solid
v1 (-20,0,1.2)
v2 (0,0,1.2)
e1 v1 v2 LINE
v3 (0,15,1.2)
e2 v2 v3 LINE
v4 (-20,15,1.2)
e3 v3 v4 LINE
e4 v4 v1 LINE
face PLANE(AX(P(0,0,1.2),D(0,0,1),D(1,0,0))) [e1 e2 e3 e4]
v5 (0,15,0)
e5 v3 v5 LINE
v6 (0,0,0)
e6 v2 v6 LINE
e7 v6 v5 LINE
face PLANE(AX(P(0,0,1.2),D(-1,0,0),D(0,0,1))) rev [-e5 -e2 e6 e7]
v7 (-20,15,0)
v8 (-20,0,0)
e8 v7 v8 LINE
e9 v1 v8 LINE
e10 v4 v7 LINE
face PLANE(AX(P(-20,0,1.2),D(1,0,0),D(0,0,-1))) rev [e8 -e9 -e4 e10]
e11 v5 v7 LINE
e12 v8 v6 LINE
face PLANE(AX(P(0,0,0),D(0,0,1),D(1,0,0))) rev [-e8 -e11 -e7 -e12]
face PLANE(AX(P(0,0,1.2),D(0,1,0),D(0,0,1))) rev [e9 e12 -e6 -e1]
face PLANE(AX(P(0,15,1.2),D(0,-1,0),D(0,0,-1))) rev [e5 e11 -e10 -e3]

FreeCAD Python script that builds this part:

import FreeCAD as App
import Part
import Sketcher

V = App.Vector

doc = App.newDocument("Part")
params = doc.addObject("Spreadsheet::Sheet", "Params")
for row, (alias, value) in enumerate([
    ("sketch1_width", "20 mm"),
    ("sketch1_height", "15 mm"),
    ("pad1_length", "1.2 mm"),
], start=1):
    params.set(f"A{row}", alias)
    params.set(f"B{row}", "=" + value)
    params.setAlias(f"B{row}", alias)

body = doc.addObject("PartDesign::Body", "Body")

sketch1 = body.newObject("Sketcher::SketchObject", "Sketch")
sketch1.AttachmentSupport = (doc.getObject("XY_Plane"), [""])
sketch1.MapMode = "FlatFace"
sketch1.addGeometry(Part.LineSegment(V(-20, 15, 0), V(-20, 0, 0)), False)
sketch1.addGeometry(Part.LineSegment(V(-20, 0, 0), V(0, 0, 0)), False)
sketch1.addGeometry(Part.LineSegment(V(0, 0, 0), V(0, 15, 0)), False)
sketch1.addGeometry(Part.LineSegment(V(0, 15, 0), V(-20, 15, 0)), False)
sketch1.addConstraint(Sketcher.Constraint("Coincident", 0, 2, 1, 1))
sketch1.addConstraint(Sketcher.Constraint("Coincident", 1, 2, 2, 1))
sketch1.addConstraint(Sketcher.Constraint("Coincident", 2, 2, 3, 1))
sketch1.addConstraint(Sketcher.Constraint("Coincident", 3, 2, 0, 1))
sketch1.addConstraint(Sketcher.Constraint("Vertical", 0))
sketch1.addConstraint(Sketcher.Constraint("Horizontal", 1))
sketch1.addConstraint(Sketcher.Constraint("Vertical", 2))
sketch1.addConstraint(Sketcher.Constraint("Horizontal", 3))
sketch1.addConstraint(Sketcher.Constraint("Coincident", 1, 2, -1, 1))
sketch1.addConstraint(Sketcher.Constraint("DistanceX", 1, 1, 1, 2, 20.0))
sketch1.addConstraint(Sketcher.Constraint("DistanceY", 0, 2, 0, 1, 15.0))
sketch1.setExpression("Constraints[9]", "Params.sketch1_width")
sketch1.setExpression("Constraints[10]", "Params.sketch1_height")
pad1 = body.newObject("PartDesign::Pad", "Pad")
pad1.Profile = sketch1
pad1.setExpression("Length", "Params.pad1_length")

doc.recompute()
